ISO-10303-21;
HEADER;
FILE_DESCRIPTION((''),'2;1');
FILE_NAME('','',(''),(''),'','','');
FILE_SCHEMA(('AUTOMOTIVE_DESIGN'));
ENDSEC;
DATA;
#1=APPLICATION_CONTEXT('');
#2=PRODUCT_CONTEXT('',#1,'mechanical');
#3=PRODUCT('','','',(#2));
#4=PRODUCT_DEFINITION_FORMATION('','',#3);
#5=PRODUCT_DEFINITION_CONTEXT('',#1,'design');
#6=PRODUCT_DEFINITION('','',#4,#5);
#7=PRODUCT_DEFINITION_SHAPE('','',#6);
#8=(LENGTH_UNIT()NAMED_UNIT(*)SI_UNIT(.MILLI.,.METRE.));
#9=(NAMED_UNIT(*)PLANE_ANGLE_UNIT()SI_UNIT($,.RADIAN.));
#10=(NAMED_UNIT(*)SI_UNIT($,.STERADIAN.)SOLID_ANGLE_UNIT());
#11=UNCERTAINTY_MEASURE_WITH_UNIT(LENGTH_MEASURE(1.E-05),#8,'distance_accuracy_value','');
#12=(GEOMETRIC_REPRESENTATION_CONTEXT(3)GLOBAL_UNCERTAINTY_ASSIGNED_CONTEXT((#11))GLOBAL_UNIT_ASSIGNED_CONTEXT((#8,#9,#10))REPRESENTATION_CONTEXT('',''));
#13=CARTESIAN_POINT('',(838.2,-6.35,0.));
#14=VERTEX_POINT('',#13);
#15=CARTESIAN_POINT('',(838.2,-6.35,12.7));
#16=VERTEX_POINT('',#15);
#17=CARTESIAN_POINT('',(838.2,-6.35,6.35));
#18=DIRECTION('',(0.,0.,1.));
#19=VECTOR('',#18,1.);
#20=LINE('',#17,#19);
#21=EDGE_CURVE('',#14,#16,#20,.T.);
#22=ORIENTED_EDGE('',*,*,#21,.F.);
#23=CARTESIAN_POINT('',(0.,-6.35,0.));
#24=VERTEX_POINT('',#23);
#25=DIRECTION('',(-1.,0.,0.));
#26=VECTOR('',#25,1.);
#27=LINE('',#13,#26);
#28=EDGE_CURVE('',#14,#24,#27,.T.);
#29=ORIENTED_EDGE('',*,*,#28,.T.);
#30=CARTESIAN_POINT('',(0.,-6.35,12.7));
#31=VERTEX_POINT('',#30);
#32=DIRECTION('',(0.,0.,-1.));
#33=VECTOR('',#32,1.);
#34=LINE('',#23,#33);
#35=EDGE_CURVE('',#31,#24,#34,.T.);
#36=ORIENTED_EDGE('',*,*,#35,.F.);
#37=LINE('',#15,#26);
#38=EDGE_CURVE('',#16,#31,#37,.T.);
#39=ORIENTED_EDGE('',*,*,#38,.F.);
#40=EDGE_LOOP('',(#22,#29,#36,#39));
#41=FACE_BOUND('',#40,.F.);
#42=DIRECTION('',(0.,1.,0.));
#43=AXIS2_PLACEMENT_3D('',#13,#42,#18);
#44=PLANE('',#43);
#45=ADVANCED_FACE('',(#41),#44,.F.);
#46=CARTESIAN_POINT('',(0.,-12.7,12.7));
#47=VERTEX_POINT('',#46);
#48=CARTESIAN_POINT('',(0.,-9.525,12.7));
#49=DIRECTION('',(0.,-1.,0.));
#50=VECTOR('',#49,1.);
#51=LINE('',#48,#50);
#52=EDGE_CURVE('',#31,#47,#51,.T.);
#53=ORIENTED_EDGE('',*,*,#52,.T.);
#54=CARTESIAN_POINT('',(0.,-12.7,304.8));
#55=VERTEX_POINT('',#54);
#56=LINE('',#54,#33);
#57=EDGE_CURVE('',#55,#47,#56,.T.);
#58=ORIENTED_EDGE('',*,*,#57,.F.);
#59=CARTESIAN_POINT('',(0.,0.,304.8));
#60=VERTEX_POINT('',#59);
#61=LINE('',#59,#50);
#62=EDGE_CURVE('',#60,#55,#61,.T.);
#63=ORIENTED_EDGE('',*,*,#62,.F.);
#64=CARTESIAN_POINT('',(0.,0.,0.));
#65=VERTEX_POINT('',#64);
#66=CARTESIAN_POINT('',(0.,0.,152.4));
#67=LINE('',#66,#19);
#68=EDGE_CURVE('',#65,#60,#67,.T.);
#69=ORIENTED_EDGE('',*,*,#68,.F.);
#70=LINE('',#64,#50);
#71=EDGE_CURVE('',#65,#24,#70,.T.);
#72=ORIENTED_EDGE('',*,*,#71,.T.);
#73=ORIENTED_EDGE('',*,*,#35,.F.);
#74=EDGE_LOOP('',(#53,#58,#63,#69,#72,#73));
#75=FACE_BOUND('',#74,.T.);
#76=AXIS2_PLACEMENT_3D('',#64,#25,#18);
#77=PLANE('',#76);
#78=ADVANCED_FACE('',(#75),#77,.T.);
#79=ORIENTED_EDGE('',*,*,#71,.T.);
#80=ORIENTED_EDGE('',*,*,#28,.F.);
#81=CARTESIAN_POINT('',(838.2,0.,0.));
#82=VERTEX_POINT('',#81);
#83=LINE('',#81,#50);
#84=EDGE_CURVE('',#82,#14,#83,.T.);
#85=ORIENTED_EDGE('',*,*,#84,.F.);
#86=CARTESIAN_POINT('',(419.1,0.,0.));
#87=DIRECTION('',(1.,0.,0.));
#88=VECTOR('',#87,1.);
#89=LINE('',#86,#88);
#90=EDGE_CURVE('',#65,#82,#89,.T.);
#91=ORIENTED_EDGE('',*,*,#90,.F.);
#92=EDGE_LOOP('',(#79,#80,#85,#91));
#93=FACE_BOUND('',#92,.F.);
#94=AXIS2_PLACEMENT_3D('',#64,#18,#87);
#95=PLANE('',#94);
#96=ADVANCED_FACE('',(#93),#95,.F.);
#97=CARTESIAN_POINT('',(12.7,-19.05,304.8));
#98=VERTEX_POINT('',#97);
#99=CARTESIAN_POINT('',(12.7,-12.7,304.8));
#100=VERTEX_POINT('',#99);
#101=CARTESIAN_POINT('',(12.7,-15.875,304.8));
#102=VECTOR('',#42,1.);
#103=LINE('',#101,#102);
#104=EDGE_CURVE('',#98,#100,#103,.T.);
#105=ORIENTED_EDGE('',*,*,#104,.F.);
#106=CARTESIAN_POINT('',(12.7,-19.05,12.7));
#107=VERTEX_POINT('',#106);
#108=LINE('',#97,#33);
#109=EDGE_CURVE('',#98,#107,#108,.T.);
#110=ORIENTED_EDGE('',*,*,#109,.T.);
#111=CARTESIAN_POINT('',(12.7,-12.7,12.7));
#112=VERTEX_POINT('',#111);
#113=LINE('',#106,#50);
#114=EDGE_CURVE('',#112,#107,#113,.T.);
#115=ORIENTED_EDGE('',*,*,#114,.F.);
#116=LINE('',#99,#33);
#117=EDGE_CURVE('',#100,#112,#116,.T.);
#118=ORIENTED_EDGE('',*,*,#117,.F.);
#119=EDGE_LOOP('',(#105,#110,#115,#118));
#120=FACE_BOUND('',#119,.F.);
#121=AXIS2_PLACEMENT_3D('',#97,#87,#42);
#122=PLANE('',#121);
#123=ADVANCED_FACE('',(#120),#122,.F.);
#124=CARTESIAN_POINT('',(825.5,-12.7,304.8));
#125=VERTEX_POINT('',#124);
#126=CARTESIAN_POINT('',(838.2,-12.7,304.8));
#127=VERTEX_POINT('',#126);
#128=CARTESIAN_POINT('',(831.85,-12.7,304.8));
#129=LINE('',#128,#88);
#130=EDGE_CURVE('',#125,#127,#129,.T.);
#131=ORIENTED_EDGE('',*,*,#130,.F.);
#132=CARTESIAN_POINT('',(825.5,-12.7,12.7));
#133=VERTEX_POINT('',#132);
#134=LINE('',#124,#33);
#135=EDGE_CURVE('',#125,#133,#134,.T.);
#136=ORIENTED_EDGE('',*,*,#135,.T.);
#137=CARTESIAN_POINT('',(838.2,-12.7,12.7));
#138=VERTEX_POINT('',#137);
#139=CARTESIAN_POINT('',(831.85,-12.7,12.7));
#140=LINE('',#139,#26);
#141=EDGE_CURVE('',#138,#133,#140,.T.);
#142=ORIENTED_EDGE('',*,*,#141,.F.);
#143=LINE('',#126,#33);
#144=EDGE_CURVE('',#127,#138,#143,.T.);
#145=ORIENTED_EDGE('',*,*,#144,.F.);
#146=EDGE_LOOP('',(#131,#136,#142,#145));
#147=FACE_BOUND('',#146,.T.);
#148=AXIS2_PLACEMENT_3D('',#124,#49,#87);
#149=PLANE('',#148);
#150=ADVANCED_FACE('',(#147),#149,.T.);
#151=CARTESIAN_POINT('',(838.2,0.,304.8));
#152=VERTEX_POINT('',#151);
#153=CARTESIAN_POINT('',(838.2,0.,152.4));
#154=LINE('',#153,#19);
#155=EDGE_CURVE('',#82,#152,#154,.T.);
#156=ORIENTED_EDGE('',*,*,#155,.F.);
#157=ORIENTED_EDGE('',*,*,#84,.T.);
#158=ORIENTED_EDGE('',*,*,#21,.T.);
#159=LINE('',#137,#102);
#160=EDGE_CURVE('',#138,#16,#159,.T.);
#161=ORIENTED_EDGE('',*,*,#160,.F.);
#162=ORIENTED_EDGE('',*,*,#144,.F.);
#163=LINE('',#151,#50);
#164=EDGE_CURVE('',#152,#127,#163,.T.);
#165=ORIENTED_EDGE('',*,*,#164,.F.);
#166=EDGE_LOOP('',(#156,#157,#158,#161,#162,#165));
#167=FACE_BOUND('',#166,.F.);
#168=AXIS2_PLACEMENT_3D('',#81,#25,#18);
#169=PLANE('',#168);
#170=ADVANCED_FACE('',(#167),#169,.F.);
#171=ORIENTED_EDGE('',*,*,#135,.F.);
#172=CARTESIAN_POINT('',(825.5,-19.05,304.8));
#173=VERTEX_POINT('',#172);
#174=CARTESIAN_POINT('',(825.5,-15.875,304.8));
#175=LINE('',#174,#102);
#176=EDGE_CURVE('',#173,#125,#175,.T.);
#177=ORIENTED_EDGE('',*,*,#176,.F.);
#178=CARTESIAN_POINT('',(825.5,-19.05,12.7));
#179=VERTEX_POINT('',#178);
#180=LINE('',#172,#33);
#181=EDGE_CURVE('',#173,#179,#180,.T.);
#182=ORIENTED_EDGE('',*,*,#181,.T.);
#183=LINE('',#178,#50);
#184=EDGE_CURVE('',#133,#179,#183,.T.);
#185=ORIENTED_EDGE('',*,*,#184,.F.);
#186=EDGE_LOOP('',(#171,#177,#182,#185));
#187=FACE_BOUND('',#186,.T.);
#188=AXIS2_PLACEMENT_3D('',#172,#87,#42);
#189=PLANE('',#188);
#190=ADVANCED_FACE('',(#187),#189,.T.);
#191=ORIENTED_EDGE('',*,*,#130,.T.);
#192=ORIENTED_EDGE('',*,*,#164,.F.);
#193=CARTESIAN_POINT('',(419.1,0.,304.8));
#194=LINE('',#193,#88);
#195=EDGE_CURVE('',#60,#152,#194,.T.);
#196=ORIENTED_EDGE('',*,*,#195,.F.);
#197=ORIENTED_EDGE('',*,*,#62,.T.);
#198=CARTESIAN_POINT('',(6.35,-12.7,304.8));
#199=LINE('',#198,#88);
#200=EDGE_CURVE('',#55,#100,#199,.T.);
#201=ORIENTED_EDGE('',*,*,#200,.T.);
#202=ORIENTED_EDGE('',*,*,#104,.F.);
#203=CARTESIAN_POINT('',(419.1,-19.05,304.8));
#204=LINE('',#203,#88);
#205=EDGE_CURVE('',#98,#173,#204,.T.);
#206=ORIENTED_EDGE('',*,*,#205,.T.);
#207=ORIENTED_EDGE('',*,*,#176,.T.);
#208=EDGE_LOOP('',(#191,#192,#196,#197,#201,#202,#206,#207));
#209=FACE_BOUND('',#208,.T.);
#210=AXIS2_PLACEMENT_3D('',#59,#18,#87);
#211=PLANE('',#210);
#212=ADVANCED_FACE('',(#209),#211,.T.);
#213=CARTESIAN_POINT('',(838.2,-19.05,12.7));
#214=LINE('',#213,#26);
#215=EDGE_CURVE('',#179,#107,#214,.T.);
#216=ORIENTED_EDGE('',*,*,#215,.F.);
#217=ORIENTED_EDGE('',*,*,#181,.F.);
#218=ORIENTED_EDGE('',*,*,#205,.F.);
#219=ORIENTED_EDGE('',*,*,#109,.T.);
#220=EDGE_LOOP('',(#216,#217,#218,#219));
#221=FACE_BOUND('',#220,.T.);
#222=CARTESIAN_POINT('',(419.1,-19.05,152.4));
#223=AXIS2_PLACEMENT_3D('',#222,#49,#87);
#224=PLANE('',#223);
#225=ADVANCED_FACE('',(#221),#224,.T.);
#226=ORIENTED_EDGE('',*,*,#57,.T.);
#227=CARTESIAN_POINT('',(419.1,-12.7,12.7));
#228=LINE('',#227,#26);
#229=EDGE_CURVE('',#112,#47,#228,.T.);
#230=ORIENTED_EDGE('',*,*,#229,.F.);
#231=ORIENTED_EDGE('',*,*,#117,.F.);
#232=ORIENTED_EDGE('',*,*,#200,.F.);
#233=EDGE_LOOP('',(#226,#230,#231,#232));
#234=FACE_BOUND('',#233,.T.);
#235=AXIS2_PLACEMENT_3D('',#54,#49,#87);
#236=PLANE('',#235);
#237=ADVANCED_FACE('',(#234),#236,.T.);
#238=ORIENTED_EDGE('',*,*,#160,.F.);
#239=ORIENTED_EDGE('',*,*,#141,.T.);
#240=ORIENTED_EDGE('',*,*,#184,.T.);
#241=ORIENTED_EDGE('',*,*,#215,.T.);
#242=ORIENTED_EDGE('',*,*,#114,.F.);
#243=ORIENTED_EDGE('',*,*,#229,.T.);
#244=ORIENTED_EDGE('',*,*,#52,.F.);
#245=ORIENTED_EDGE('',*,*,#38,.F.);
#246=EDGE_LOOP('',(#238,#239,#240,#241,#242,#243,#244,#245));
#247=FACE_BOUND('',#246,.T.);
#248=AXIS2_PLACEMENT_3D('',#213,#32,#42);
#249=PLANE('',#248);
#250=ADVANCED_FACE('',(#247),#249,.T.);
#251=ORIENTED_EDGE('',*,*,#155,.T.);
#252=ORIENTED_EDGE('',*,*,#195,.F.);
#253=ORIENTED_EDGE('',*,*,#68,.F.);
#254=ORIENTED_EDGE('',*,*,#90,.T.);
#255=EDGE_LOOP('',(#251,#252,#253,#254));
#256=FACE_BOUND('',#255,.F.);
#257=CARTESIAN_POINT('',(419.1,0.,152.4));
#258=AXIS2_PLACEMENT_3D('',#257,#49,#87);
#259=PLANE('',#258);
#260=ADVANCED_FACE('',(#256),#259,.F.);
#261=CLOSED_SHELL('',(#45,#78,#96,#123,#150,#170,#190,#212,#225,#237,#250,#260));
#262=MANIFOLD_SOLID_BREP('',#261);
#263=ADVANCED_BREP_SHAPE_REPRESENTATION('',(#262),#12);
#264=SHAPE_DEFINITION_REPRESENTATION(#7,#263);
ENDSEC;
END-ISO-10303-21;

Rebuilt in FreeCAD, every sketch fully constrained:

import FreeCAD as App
import Part
import Sketcher
Q = App.Units.Quantity


def add_polygon(sketch, points):
    """Adds a closed chain of lines whose ends are joined by coincident constraints."""
    first, n = sketch.GeometryCount, len(points)
    for a, b in zip(points, points[1:] + points[:1]):
        sketch.addGeometry(Part.LineSegment(App.Vector(*a, 0), App.Vector(*b, 0)), False)
    for i in range(n):
        sketch.addConstraint(Sketcher.Constraint("Coincident", first + i, 2, first + (i + 1) % n, 1))

doc = App.newDocument("Part")
body = doc.addObject("PartDesign::Body", "Body")

# Sketch on XZ plane
sketch1 = doc.addObject("Sketcher::SketchObject", "Sketch")
body.addObject(sketch1)
sketch1.AttachmentSupport = (doc.XZ_Plane, [""])
sketch1.MapMode = "FlatFace"
add_polygon(sketch1, [(0, 304.8), (0, 0), (838.2, 0), (838.2, 304.8)])  # lines 0-3
sketch1.addConstraint([
    Sketcher.Constraint("Vertical", 0),
    Sketcher.Constraint("Horizontal", 1),
    Sketcher.Constraint("Vertical", 2),
    Sketcher.Constraint("Horizontal", 3),
    Sketcher.Constraint("Coincident", 0, 2, -1, 1),
    Sketcher.Constraint("DistanceX", 1, 1, 1, 2, Q("33 in")),
    Sketcher.Constraint("DistanceY", 0, 2, 0, 1, Q("12 in")),
])
pad1 = doc.addObject("PartDesign::Pad", "Pad")
body.addObject(pad1)
pad1.Profile = sketch1
pad1.Length = Q("0.75 in")

# Sketch on YZ plane
sketch2 = doc.addObject("Sketcher::SketchObject", "Sketch001")
body.addObject(sketch2)
sketch2.AttachmentSupport = (doc.YZ_Plane, [""])
sketch2.MapMode = "FlatFace"
sketch2.AttachmentOffset = App.Placement(App.Vector(0, 0, 33 * 25.4), App.Rotation())
add_polygon(sketch2, [(-19.05, 12.7), (-19.05, 0), (-6.35, 0), (-6.35, 12.7)])  # lines 0-3
sketch2.addConstraint([
    Sketcher.Constraint("Vertical", 0),
    Sketcher.Constraint("Horizontal", 1),
    Sketcher.Constraint("Vertical", 2),
    Sketcher.Constraint("Horizontal", 3),
    Sketcher.Constraint("PointOnObject", 0, 2, -1),
    Sketcher.Constraint("Equal", 3, 0),
    Sketcher.Constraint("DistanceX", 1, 1, 1, 2, Q("0.5 in")),
    Sketcher.Constraint("DistanceX", 0, 2, -1, 1, Q("0.75 in")),
])
pocket1 = doc.addObject("PartDesign::Pocket", "Pocket")
body.addObject(pocket1)
pocket1.Profile = sketch2
pocket1.Type = "ThroughAll"

# Sketch on XY plane
sketch3 = doc.addObject("Sketcher::SketchObject", "Sketch002")
body.addObject(sketch3)
sketch3.AttachmentSupport = (doc.XY_Plane, [""])
sketch3.MapMode = "FlatFace"
sketch3.AttachmentOffset = App.Placement(App.Vector(0, 0, 12 * 25.4), App.Rotation())
add_polygon(sketch3, [(825.5, -12.7), (825.5, -19.05), (838.2, -19.05), (838.2, -12.7)])  # lines 0-3
add_polygon(sketch3, [(0, -12.7), (0, -19.05), (12.7, -19.05), (12.7, -12.7)])  # lines 4-7
sketch3.addConstraint([
    Sketcher.Constraint("Vertical", 0),
    Sketcher.Constraint("Horizontal", 1),
    Sketcher.Constraint("Vertical", 2),
    Sketcher.Constraint("Horizontal", 3),
    Sketcher.Constraint("Vertical", 4),
    Sketcher.Constraint("Horizontal", 5),
    Sketcher.Constraint("Vertical", 6),
    Sketcher.Constraint("Horizontal", 7),
    Sketcher.Constraint("PointOnObject", 4, 2, -2),
    Sketcher.Constraint("Horizontal", 1, 2, 4, 2),
    Sketcher.Constraint("Horizontal", 3, 2, 6, 2),
    Sketcher.Constraint("Equal", 3, 5),
    Sketcher.Constraint("DistanceX", 1, 1, 1, 2, Q("0.5 in")),
    Sketcher.Constraint("DistanceX", -1, 1, 1, 2, Q("33 in")),
    Sketcher.Constraint("DistanceY", 0, 2, 0, 1, Q("0.25 in")),
    Sketcher.Constraint("DistanceY", 2, 2, -1, 1, Q("0.5 in")),
])
pocket2 = doc.addObject("PartDesign::Pocket", "Pocket001")
body.addObject(pocket2)
pocket2.Profile = sketch3
pocket2.Type = "ThroughAll"

doc.recompute()
